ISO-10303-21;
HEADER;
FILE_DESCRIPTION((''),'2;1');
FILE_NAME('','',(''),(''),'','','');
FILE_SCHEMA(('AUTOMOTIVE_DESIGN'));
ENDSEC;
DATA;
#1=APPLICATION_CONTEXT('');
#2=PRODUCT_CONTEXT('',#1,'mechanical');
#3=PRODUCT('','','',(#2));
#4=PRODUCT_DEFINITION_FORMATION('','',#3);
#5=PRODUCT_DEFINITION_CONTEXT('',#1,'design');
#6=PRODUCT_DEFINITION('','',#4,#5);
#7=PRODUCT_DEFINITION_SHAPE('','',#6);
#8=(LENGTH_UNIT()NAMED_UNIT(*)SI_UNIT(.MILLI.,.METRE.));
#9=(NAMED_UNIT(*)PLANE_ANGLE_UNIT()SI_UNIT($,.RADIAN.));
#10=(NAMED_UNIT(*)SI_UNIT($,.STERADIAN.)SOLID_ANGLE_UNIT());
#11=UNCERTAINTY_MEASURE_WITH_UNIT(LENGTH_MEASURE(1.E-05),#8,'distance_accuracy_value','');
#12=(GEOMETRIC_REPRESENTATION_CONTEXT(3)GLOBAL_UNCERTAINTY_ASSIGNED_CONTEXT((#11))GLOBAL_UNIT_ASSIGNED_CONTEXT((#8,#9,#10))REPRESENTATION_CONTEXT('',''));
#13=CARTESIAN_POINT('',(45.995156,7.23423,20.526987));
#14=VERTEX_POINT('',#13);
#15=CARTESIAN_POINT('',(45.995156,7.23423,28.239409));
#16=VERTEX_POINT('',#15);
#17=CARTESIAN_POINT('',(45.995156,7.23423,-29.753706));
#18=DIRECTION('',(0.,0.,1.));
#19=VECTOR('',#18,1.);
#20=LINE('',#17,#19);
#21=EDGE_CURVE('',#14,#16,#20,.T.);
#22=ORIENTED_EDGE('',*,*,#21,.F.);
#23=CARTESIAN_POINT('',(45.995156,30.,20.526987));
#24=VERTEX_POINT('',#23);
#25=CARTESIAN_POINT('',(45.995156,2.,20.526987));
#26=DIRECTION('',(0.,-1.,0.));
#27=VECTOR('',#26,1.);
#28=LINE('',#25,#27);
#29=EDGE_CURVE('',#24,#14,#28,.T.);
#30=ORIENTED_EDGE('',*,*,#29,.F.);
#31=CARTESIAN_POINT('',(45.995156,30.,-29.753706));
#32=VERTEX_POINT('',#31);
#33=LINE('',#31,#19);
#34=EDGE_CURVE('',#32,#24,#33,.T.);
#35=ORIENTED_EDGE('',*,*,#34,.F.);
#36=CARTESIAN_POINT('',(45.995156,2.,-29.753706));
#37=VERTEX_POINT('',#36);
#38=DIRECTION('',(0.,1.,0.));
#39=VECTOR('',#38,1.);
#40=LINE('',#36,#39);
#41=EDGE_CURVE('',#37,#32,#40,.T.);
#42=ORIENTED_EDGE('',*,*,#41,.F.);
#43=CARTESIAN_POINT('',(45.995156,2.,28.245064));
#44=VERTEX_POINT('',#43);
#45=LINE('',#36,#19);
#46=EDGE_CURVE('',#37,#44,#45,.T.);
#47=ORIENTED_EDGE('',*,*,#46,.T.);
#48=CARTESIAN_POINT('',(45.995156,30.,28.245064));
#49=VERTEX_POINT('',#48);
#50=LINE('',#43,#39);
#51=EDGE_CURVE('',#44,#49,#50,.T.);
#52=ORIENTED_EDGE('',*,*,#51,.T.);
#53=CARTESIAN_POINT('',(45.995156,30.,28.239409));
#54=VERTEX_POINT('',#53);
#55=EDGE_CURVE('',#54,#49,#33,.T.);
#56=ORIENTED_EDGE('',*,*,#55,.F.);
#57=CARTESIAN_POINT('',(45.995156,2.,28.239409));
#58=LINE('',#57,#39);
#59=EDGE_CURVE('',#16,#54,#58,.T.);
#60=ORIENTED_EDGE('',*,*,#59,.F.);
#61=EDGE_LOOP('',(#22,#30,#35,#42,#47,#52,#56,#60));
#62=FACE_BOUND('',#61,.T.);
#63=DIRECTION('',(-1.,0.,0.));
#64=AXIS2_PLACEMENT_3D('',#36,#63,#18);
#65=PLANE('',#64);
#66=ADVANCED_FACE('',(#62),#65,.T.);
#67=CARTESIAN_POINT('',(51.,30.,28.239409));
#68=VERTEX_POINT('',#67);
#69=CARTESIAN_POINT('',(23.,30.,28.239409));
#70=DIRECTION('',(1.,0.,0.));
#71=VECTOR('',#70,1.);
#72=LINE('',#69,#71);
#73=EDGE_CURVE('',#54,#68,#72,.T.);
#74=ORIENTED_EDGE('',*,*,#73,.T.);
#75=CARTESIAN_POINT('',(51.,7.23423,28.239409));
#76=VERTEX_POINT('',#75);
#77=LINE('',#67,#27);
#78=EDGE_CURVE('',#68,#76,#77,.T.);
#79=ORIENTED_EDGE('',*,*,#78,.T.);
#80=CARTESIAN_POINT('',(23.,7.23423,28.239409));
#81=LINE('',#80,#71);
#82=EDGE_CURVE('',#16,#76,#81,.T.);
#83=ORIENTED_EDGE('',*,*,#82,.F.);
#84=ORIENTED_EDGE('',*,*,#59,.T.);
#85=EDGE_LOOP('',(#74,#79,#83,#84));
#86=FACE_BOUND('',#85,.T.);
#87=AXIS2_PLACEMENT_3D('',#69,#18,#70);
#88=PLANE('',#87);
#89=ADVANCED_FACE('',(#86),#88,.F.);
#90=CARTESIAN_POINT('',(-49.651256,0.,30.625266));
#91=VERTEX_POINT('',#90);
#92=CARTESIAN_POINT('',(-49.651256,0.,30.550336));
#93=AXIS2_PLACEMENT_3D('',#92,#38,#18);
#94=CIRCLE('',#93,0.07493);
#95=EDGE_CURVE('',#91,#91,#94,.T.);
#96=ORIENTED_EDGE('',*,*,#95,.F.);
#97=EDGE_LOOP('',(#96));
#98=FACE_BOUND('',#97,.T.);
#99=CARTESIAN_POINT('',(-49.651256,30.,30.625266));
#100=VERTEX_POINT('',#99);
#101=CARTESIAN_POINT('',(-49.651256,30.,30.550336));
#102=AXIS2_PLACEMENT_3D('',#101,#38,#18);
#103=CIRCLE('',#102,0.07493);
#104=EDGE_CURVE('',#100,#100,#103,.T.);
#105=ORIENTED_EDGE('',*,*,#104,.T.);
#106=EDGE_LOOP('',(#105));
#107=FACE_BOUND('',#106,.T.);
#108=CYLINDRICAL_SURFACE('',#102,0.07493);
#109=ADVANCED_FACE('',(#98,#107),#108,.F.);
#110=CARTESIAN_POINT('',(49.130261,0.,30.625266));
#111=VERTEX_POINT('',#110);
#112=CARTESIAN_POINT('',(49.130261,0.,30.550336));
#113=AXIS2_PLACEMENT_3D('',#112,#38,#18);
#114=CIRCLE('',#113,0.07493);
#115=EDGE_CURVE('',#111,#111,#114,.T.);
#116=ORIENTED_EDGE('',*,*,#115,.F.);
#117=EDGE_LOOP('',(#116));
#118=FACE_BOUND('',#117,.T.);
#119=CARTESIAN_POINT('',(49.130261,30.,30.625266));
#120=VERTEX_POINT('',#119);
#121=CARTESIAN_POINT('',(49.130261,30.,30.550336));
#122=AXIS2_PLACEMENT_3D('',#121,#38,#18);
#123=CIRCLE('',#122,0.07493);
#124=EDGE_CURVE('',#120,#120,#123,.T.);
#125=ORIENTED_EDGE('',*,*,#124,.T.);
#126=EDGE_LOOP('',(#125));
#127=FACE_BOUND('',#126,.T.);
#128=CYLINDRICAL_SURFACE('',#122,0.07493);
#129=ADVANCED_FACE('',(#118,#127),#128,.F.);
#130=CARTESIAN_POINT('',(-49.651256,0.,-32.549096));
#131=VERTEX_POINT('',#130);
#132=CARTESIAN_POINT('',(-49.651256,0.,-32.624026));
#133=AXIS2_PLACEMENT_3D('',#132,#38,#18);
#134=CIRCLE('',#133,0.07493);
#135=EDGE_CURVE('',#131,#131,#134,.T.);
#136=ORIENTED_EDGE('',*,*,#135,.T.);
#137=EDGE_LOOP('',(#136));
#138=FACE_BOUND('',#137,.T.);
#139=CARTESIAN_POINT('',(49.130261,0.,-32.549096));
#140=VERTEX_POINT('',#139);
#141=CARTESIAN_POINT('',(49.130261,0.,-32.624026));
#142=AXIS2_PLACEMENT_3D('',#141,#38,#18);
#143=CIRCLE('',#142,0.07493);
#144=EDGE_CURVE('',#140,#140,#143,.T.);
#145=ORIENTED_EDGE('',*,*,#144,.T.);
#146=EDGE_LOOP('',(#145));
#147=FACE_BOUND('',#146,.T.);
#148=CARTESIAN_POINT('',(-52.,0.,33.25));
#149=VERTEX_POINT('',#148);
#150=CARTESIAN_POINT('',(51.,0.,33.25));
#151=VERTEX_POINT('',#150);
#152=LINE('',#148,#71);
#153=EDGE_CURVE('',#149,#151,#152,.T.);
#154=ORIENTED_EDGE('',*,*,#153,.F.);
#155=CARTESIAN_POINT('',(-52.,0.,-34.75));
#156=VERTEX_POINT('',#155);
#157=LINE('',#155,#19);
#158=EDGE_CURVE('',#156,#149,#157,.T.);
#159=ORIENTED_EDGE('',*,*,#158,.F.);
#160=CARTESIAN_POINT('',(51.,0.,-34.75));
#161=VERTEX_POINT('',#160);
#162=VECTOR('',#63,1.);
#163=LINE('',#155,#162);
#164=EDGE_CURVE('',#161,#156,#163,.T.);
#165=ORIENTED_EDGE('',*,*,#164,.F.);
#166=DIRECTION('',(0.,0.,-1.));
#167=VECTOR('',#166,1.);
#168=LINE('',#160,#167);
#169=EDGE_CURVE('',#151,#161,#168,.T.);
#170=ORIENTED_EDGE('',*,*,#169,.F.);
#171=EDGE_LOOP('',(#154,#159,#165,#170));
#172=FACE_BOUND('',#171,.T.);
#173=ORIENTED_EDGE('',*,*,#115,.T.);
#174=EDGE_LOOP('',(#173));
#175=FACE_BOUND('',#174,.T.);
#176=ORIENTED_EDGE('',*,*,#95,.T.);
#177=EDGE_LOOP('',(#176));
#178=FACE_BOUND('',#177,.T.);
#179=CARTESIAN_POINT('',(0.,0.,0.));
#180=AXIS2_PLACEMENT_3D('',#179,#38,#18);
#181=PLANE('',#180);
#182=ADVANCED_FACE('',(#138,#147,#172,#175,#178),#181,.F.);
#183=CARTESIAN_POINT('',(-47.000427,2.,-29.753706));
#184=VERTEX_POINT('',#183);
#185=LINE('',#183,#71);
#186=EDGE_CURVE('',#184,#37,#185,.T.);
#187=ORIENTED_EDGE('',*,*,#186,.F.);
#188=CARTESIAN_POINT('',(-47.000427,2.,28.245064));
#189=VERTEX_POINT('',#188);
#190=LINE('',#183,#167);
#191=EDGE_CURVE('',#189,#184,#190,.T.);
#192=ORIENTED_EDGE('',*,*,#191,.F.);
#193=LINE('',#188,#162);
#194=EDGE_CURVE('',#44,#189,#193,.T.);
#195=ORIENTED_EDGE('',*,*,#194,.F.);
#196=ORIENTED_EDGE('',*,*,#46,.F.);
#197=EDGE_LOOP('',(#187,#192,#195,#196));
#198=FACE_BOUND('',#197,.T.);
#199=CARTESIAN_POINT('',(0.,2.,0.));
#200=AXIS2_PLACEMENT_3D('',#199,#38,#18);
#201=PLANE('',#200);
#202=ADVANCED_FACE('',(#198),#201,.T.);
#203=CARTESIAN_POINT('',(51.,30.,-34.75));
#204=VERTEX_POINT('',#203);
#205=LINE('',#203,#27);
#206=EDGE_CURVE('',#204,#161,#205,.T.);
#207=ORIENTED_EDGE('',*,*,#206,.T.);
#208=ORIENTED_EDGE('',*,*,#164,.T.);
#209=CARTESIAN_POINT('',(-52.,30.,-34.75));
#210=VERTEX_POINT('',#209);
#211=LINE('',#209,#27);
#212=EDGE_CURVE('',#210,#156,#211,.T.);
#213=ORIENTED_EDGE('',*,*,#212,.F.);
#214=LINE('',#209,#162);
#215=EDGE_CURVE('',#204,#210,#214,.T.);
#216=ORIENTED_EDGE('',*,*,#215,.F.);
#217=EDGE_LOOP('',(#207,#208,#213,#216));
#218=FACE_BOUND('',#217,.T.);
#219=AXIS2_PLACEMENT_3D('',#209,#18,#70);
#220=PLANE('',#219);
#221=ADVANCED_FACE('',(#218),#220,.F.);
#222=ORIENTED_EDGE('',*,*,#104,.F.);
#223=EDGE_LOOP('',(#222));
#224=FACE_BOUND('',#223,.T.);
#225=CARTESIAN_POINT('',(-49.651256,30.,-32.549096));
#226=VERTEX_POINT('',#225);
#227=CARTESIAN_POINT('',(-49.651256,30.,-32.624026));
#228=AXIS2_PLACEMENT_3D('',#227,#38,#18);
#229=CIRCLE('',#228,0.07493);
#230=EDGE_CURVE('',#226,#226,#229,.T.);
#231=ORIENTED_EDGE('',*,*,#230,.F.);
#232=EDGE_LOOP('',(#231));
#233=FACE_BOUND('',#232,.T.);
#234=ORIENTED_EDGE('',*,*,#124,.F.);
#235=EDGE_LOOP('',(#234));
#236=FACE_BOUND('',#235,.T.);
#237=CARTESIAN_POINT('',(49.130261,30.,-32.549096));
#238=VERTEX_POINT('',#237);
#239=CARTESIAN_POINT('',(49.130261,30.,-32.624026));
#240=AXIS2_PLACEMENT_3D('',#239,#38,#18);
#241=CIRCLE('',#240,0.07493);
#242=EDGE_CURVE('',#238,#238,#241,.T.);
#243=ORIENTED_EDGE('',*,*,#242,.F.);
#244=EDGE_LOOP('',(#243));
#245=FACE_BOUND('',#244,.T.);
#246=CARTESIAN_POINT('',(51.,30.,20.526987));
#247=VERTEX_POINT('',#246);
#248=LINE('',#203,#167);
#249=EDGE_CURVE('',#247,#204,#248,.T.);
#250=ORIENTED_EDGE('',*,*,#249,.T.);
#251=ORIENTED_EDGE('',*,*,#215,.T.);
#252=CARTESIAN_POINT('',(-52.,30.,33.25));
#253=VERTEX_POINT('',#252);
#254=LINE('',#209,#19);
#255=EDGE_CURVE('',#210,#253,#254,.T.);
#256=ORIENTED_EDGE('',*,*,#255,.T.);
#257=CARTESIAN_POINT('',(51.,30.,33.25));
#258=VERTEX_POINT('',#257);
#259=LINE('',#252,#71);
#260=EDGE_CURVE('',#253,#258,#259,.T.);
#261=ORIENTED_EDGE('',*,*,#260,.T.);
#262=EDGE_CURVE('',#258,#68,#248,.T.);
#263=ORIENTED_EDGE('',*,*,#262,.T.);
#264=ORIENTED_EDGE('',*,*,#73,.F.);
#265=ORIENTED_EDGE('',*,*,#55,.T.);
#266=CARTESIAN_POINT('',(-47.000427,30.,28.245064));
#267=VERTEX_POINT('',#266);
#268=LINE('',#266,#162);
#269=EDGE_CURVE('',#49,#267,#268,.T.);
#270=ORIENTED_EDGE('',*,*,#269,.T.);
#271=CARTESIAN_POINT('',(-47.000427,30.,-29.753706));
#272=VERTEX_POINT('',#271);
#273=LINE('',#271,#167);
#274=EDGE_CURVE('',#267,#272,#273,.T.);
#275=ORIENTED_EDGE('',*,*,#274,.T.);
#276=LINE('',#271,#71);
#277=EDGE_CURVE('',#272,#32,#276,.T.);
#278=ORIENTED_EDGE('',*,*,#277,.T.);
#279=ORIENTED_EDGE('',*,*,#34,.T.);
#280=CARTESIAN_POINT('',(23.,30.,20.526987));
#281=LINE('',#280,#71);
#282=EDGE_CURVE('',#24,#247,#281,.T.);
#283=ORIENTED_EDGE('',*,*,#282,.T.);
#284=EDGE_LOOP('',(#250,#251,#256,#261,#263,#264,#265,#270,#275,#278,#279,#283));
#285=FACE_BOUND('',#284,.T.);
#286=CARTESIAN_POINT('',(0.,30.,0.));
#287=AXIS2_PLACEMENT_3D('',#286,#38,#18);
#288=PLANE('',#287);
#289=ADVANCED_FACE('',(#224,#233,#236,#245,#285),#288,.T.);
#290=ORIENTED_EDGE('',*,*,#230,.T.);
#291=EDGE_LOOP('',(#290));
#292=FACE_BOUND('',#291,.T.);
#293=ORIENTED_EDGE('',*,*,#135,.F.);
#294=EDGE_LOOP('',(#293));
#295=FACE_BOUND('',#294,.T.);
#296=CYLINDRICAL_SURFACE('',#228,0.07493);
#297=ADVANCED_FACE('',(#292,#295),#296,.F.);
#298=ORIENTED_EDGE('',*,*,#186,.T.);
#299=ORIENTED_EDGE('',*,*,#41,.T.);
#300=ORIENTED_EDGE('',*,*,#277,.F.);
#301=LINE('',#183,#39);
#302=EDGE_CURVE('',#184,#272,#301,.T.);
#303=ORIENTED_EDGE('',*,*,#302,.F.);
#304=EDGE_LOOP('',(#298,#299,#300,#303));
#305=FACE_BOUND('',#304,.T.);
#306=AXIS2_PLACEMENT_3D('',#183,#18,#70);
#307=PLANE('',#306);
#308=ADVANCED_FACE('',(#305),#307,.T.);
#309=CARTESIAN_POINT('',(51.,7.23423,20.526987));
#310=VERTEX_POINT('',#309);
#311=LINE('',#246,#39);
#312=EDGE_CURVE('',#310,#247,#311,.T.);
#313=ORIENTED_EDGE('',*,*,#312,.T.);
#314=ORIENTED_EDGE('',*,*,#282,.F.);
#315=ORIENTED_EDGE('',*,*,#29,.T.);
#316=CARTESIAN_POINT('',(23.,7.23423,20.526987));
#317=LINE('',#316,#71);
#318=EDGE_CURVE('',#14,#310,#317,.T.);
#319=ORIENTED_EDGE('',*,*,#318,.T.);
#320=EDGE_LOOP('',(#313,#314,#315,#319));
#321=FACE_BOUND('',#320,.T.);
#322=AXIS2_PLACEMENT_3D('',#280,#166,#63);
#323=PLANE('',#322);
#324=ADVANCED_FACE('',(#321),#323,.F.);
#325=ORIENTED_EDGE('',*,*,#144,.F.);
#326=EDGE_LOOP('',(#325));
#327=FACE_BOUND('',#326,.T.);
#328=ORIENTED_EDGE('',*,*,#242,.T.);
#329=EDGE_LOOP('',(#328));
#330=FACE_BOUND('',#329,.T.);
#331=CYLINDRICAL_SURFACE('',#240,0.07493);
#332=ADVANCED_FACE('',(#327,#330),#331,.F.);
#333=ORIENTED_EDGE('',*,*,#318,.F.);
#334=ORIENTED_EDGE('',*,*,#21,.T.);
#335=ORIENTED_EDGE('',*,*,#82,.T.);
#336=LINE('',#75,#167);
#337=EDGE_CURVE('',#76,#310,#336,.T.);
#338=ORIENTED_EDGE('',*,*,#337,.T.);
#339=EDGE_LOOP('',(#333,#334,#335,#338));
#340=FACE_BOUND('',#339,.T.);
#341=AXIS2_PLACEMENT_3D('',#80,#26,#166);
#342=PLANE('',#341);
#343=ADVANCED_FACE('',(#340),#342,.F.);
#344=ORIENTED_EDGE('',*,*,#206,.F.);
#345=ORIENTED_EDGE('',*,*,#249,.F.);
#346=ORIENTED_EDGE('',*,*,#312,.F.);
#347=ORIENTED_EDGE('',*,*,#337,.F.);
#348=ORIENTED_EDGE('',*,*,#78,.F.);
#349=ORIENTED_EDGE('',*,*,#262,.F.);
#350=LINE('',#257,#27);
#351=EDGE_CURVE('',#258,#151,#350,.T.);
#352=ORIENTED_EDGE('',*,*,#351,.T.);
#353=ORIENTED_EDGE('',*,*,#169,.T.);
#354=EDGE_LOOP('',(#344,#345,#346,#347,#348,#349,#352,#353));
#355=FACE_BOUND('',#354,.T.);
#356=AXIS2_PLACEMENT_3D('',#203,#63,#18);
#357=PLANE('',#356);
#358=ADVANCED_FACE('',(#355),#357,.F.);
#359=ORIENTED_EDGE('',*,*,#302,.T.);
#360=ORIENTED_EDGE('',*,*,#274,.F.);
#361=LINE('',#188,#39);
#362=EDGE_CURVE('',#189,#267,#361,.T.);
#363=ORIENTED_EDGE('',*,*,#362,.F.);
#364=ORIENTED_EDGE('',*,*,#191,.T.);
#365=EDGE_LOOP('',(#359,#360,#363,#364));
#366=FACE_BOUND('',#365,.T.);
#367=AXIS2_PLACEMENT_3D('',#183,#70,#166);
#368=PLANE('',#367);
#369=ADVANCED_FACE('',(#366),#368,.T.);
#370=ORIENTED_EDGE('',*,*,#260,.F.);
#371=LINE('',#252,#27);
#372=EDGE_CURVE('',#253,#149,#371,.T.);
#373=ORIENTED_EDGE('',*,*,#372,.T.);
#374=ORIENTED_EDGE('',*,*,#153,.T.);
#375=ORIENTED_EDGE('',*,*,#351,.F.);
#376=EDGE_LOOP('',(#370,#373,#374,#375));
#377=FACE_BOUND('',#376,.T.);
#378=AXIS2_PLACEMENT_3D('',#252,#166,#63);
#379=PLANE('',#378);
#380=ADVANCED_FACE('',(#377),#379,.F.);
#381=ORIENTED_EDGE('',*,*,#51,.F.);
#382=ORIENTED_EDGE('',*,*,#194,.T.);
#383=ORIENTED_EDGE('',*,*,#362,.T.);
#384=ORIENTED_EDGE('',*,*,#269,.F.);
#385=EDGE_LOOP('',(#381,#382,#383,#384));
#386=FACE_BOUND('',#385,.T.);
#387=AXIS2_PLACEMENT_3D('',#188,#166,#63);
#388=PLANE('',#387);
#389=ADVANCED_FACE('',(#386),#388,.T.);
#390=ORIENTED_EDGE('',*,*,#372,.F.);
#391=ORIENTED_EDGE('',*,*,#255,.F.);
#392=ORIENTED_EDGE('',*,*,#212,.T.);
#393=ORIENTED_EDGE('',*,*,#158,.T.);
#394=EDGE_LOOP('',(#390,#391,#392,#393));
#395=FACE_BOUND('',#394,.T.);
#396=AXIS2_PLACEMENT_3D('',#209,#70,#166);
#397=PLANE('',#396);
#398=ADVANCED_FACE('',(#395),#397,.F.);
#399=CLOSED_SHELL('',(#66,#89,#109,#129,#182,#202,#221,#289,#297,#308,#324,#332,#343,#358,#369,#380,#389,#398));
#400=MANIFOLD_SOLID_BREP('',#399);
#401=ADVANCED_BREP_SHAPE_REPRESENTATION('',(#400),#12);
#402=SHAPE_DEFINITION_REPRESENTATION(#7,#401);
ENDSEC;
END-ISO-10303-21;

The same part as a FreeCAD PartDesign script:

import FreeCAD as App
import Part
import Sketcher
from FreeCAD import Vector

doc = App.newDocument("Part")
body = doc.addObject("PartDesign::Body", "Body")

sketch1 = doc.addObject("Sketcher::SketchObject", "Sketch")
body.addObject(sketch1)
sketch1.AttachmentSupport = (doc.XZ_Plane, [""])
sketch1.MapMode = "FlatFace"
sketch1.addGeometry(Part.LineSegment(Vector(-52, -35, 0), Vector(-52, 33, 0)), False)
sketch1.addGeometry(Part.LineSegment(Vector(-52, 33, 0), Vector(51, 33, 0)), False)
sketch1.addGeometry(Part.LineSegment(Vector(51, 33, 0), Vector(51, -35, 0)), False)
sketch1.addGeometry(Part.LineSegment(Vector(51, -35, 0), Vector(-52, -35, 0)), False)
sketch1.addConstraint(Sketcher.Constraint("Coincident", 0, 2, 1, 1))
sketch1.addConstraint(Sketcher.Constraint("Coincident", 1, 2, 2, 1))
sketch1.addConstraint(Sketcher.Constraint("Coincident", 2, 2, 3, 1))
sketch1.addConstraint(Sketcher.Constraint("Coincident", 3, 2, 0, 1))
sketch1.addConstraint(Sketcher.Constraint("Vertical", 0))
sketch1.addConstraint(Sketcher.Constraint("Horizontal", 1))
sketch1.addConstraint(Sketcher.Constraint("Vertical", 2))
sketch1.addConstraint(Sketcher.Constraint("Horizontal", 3))
sketch1.addConstraint(Sketcher.Constraint("DistanceX", 1, 1, 1, 2, 103.0))
sketch1.addConstraint(Sketcher.Constraint("DistanceY", 0, 1, 0, 2, 68.0))
sketch1.addConstraint(Sketcher.Constraint("DistanceX", 0, 2, -1, 1, 52.0))
sketch1.addConstraint(Sketcher.Constraint("DistanceY", -1, 1, 0, 2, 33.25))
pad1 = doc.addObject("PartDesign::Pad", "Pad")
body.addObject(pad1)
pad1.Profile = sketch1
pad1.Length = 30
pad1.Reversed = True

sketch2 = doc.addObject("Sketcher::SketchObject", "Sketch001")
body.addObject(sketch2)
sketch2.AttachmentSupport = (doc.XZ_Plane, [""])
sketch2.MapMode = "FlatFace"
sketch2.AttachmentOffset = App.Placement(Vector(0, 0, -30), App.Rotation())
sketch2.addGeometry(Part.LineSegment(Vector(-47, 28, 0), Vector(-47, -30, 0)), False)
sketch2.addGeometry(Part.LineSegment(Vector(-47, -30, 0), Vector(46, -30, 0)), False)
sketch2.addGeometry(Part.LineSegment(Vector(46, -30, 0), Vector(46, 28, 0)), False)
sketch2.addGeometry(Part.LineSegment(Vector(46, 28, 0), Vector(-47, 28, 0)), False)
sketch2.addConstraint(Sketcher.Constraint("Coincident", 0, 2, 1, 1))
sketch2.addConstraint(Sketcher.Constraint("Coincident", 1, 2, 2, 1))
sketch2.addConstraint(Sketcher.Constraint("Coincident", 2, 2, 3, 1))
sketch2.addConstraint(Sketcher.Constraint("Coincident", 3, 2, 0, 1))
sketch2.addConstraint(Sketcher.Constraint("Vertical", 0))
sketch2.addConstraint(Sketcher.Constraint("Horizontal", 1))
sketch2.addConstraint(Sketcher.Constraint("Vertical", 2))
sketch2.addConstraint(Sketcher.Constraint("Horizontal", 3))
sketch2.addConstraint(Sketcher.Constraint("DistanceY", 0, 2, 0, 1, 57.99877))
sketch2.addConstraint(Sketcher.Constraint("DistanceX", 1, 1, 1, 2, 92.995583))
sketch2.addConstraint(Sketcher.Constraint("DistanceX", 0, 2, -1, 1, 47.000427))
sketch2.addConstraint(Sketcher.Constraint("DistanceY", 0, 2, -1, 1, 29.753706))
pocket1 = doc.addObject("PartDesign::Pocket", "Pocket")
body.addObject(pocket1)
pocket1.Profile = sketch2
pocket1.Length = 28
pocket1.Reversed = True

sketch3 = doc.addObject("Sketcher::SketchObject", "Sketch002")
body.addObject(sketch3)
sketch3.AttachmentSupport = (doc.YZ_Plane, [""])
sketch3.MapMode = "FlatFace"
sketch3.AttachmentOffset = App.Placement(Vector(0, 0, 51), App.Rotation())
sketch3.addGeometry(Part.LineSegment(Vector(30, 28, 0), Vector(7, 28, 0)), False)
sketch3.addGeometry(Part.LineSegment(Vector(7, 28, 0), Vector(7, 21, 0)), False)
sketch3.addGeometry(Part.LineSegment(Vector(7, 21, 0), Vector(30, 21, 0)), False)
sketch3.addGeometry(Part.LineSegment(Vector(30, 21, 0), Vector(30, 28, 0)), False)
sketch3.addConstraint(Sketcher.Constraint("Coincident", 0, 2, 1, 1))
sketch3.addConstraint(Sketcher.Constraint("Coincident", 1, 2, 2, 1))
sketch3.addConstraint(Sketcher.Constraint("Coincident", 2, 2, 3, 1))
sketch3.addConstraint(Sketcher.Constraint("Coincident", 3, 2, 0, 1))
sketch3.addConstraint(Sketcher.Constraint("Horizontal", 0))
sketch3.addConstraint(Sketcher.Constraint("Vertical", 1))
sketch3.addConstraint(Sketcher.Constraint("Horizontal", 2))
sketch3.addConstraint(Sketcher.Constraint("Vertical", 3))
sketch3.addConstraint(Sketcher.Constraint("DistanceX", -1, 1, 2, 2, 30.0))
sketch3.addConstraint(Sketcher.Constraint("DistanceX", 0, 2, 0, 1, 22.76577))
sketch3.addConstraint(Sketcher.Constraint("DistanceY", 1, 2, 1, 1, 7.712421))
sketch3.addConstraint(Sketcher.Constraint("DistanceY", -1, 1, 0, 2, 28.239409))
pocket2 = doc.addObject("PartDesign::Pocket", "Pocket001")
body.addObject(pocket2)
pocket2.Profile = sketch3
pocket2.Length = 28

sketch4 = doc.addObject("Sketcher::SketchObject", "Sketch003")
body.addObject(sketch4)
sketch4.AttachmentSupport = (doc.XZ_Plane, [""])
sketch4.MapMode = "FlatFace"
sketch4.AttachmentOffset = App.Placement(Vector(0, 0, -30), App.Rotation())
sketch4.addGeometry(Part.Circle(Vector(49.13, 30.55, 0), Vector(0, 0, 1), 0.07), False)
sketch4.addGeometry(Part.Circle(Vector(49.13, -32.62, 0), Vector(0, 0, 1), 0.07), False)
sketch4.addGeometry(Part.Circle(Vector(-49.65, -32.62, 0), Vector(0, 0, 1), 0.07), False)
sketch4.addGeometry(Part.Circle(Vector(-49.65, 30.55, 0), Vector(0, 0, 1), 0.07), False)
sketch4.addConstraint(Sketcher.Constraint("Equal", 0, 1))
sketch4.addConstraint(Sketcher.Constraint("Equal", 1, 2))
sketch4.addConstraint(Sketcher.Constraint("Equal", 2, 3))
sketch4.addConstraint(Sketcher.Constraint("Horizontal", 1, 3, 2, 3))
sketch4.addConstraint(Sketcher.Constraint("Horizontal", 0, 3, 3, 3))
sketch4.addConstraint(Sketcher.Constraint("Vertical", 0, 3, 1, 3))
sketch4.addConstraint(Sketcher.Constraint("Vertical", 2, 3, 3, 3))
sketch4.addConstraint(Sketcher.Constraint("Diameter", 0, 0.14986))
sketch4.addConstraint(Sketcher.Constraint("DistanceX", -1, 1, 0, 3, 49.130261))
sketch4.addConstraint(Sketcher.Constraint("DistanceY", 1, 3, 0, 3, 63.174361))
sketch4.addConstraint(Sketcher.Constraint("DistanceY", -1, 1, 0, 3, 30.550336))
sketch4.addConstraint(Sketcher.Constraint("DistanceX", 2, 3, -1, 1, 49.651256))
doc.recompute()
hole = doc.addObject("PartDesign::Hole", "Hole")
body.addObject(hole)
hole.Profile = sketch4
hole.ThreadType = "None"
hole.Diameter = 0.14986
hole.DepthType = "ThroughAll"
hole.Reversed = True

doc.recompute()
